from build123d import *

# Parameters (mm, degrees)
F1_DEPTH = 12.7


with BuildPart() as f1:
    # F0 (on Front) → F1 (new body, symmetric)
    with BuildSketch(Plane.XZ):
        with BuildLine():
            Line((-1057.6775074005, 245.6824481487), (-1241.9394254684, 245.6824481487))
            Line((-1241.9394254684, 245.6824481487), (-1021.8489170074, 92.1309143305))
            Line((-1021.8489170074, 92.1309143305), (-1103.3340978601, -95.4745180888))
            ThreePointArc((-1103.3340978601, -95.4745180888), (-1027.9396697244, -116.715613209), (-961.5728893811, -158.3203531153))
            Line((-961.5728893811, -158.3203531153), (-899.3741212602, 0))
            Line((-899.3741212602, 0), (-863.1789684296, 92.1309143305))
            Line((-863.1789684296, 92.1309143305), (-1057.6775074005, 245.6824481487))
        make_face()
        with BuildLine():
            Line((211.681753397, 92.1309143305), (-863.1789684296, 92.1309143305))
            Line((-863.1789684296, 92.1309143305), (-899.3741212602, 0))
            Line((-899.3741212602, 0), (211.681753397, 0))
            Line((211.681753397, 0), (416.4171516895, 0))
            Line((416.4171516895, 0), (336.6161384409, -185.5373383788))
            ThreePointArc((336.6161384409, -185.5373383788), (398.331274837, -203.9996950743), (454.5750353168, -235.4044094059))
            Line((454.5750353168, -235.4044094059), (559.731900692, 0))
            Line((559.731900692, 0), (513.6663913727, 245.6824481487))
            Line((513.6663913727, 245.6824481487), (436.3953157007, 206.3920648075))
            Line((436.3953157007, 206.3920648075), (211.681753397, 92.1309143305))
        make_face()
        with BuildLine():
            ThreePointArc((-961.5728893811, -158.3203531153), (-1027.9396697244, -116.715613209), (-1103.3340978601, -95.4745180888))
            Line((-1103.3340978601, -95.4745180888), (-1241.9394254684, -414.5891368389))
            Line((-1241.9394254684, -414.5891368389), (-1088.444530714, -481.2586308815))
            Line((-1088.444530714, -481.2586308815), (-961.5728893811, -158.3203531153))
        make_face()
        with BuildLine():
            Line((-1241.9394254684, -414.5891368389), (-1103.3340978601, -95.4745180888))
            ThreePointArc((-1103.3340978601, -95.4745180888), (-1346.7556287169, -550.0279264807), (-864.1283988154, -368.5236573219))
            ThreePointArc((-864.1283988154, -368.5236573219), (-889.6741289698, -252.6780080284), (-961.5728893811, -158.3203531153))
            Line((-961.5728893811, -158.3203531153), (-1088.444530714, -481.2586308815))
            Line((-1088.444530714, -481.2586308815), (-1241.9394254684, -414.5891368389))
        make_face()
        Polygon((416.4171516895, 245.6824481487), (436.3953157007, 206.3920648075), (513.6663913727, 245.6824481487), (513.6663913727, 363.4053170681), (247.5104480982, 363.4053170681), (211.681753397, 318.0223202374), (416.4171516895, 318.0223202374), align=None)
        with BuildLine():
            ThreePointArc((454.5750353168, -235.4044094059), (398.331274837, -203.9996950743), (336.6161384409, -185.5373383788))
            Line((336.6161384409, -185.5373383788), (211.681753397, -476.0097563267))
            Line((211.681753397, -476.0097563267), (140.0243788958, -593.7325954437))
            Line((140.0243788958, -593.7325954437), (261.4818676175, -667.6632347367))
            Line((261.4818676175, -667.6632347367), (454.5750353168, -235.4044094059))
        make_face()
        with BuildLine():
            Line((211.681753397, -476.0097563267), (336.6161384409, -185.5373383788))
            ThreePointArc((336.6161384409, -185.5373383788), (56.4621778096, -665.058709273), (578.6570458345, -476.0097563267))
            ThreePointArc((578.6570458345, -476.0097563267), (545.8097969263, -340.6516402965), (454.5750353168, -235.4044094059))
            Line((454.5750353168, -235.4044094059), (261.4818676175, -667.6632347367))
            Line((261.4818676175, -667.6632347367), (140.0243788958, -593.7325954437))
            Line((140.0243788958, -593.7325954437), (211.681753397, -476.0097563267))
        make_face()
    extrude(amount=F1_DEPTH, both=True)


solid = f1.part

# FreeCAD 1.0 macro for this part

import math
import FreeCAD as App
import Part
import Sketcher
Q = App.Units.Quantity

doc = App.newDocument("Part")
body = doc.addObject("PartDesign::Body", "Body")

sketch1 = doc.addObject("Sketcher::SketchObject", "Sketch")
body.addObject(sketch1)
sketch1.AttachmentSupport = (doc.XZ_Plane, [""])
sketch1.MapMode = "FlatFace"
sketch1.addGeometry(Part.LineSegment(App.Vector(-1057.677507, 245.682448, 0), App.Vector(-1241.939425, 245.682448, 0)), False)
sketch1.addGeometry(Part.LineSegment(App.Vector(-1241.939425, 245.682448, 0), App.Vector(-1021.848917, 92.130914, 0)), False)
sketch1.addGeometry(Part.LineSegment(App.Vector(-1021.848917, 92.130914, 0), App.Vector(-1103.334098, -95.474518, 0)), False)
sketch1.addGeometry(Part.ArcOfCircle(Part.Circle(App.Vector(-1139.571667, -368.523657, 0), App.Vector(0, 0, 1), 275.443268), math.radians(82.440199), math.radians(409.742293)), False)
sketch1.addGeometry(Part.LineSegment(App.Vector(-961.572889, -158.320353, 0), App.Vector(-899.374121, 0, 0)), False)
sketch1.addGeometry(Part.LineSegment(App.Vector(-899.374121, 0, 0), App.Vector(416.417152, 0, 0)), False)
sketch1.addGeometry(Part.LineSegment(App.Vector(416.417152, 0, 0), App.Vector(336.616138, -185.537338, 0)), False)
sketch1.addGeometry(Part.ArcOfCircle(Part.Circle(App.Vector(283.339143, -476.009756, 0), App.Vector(0, 0, 1), 295.317903), math.radians(79.606616), math.radians(414.561005)), False)
sketch1.addGeometry(Part.LineSegment(App.Vector(454.575035, -235.404409, 0), App.Vector(559.731901, 0, 0)), False)
sketch1.addGeometry(Part.LineSegment(App.Vector(559.731901, 0, 0), App.Vector(513.666391, 245.682448, 0)), False)
sketch1.addGeometry(Part.LineSegment(App.Vector(513.666391, 245.682448, 0), App.Vector(513.666391, 363.405317, 0)), False)
sketch1.addGeometry(Part.LineSegment(App.Vector(513.666391, 363.405317, 0), App.Vector(247.510448, 363.405317, 0)), False)
sketch1.addGeometry(Part.LineSegment(App.Vector(247.510448, 363.405317, 0), App.Vector(211.681753, 318.02232, 0)), False)
sketch1.addGeometry(Part.LineSegment(App.Vector(211.681753, 318.02232, 0), App.Vector(416.417152, 318.02232, 0)), False)
sketch1.addGeometry(Part.LineSegment(App.Vector(416.417152, 318.02232, 0), App.Vector(416.417152, 245.682448, 0)), False)
sketch1.addGeometry(Part.LineSegment(App.Vector(416.417152, 245.682448, 0), App.Vector(436.395316, 206.392065, 0)), False)
sketch1.addGeometry(Part.LineSegment(App.Vector(436.395316, 206.392065, 0), App.Vector(211.681753, 92.130914, 0)), False)
sketch1.addGeometry(Part.LineSegment(App.Vector(211.681753, 92.130914, 0), App.Vector(-863.178968, 92.130914, 0)), False)
sketch1.addGeometry(Part.LineSegment(App.Vector(-863.178968, 92.130914, 0), App.Vector(-1057.677507, 245.682448, 0)), False)
sketch1.addConstraint(Sketcher.Constraint("Coincident", 0, 2, 1, 1))
sketch1.addConstraint(Sketcher.Constraint("Coincident", 1, 2, 2, 1))
sketch1.addConstraint(Sketcher.Constraint("Coincident", 2, 2, 3, 1))
sketch1.addConstraint(Sketcher.Constraint("Coincident", 3, 2, 4, 1))
sketch1.addConstraint(Sketcher.Constraint("Coincident", 4, 2, 5, 1))
sketch1.addConstraint(Sketcher.Constraint("Coincident", 5, 2, 6, 1))
sketch1.addConstraint(Sketcher.Constraint("Coincident", 6, 2, 7, 1))
sketch1.addConstraint(Sketcher.Constraint("Coincident", 7, 2, 8, 1))
sketch1.addConstraint(Sketcher.Constraint("Coincident", 8, 2, 9, 1))
sketch1.addConstraint(Sketcher.Constraint("Coincident", 9, 2, 10, 1))
sketch1.addConstraint(Sketcher.Constraint("Coincident", 10, 2, 11, 1))
sketch1.addConstraint(Sketcher.Constraint("Coincident", 11, 2, 12, 1))
sketch1.addConstraint(Sketcher.Constraint("Coincident", 12, 2, 13, 1))
sketch1.addConstraint(Sketcher.Constraint("Coincident", 13, 2, 14, 1))
sketch1.addConstraint(Sketcher.Constraint("Coincident", 14, 2, 15, 1))
sketch1.addConstraint(Sketcher.Constraint("Coincident", 15, 2, 16, 1))
sketch1.addConstraint(Sketcher.Constraint("Coincident", 16, 2, 17, 1))
sketch1.addConstraint(Sketcher.Constraint("Coincident", 17, 2, 18, 1))
sketch1.addConstraint(Sketcher.Constraint("Coincident", 18, 2, 0, 1))
sketch1.addConstraint(Sketcher.Constraint("Horizontal", 0))
sketch1.addConstraint(Sketcher.Constraint("Horizontal", 5))
sketch1.addConstraint(Sketcher.Constraint("Vertical", 10))
sketch1.addConstraint(Sketcher.Constraint("Horizontal", 11))
sketch1.addConstraint(Sketcher.Constraint("Horizontal", 13))
sketch1.addConstraint(Sketcher.Constraint("Vertical", 14))
sketch1.addConstraint(Sketcher.Constraint("Horizontal", 17))
sketch1.addConstraint(Sketcher.Constraint("PointOnObject", 4, 2, -1))
sketch1.addConstraint(Sketcher.Constraint("PointOnObject", 8, 2, -1))
sketch1.addConstraint(Sketcher.Constraint("Perpendicular", 15, 16))
sketch1.addConstraint(Sketcher.Constraint("Perpendicular", 12, 18))
sketch1.addConstraint(Sketcher.Constraint("Horizontal", 0, 2, 9, 2))
sketch1.addConstraint(Sketcher.Constraint("Horizontal", 9, 2, 14, 2))
sketch1.addConstraint(Sketcher.Constraint("Horizontal", 1, 2, 16, 2))
sketch1.addConstraint(Sketcher.Constraint("Vertical", 5, 2, 13, 2))
sketch1.addConstraint(Sketcher.Constraint("Vertical", 12, 2, 16, 2))
sketch1.addConstraint(Sketcher.Constraint("DistanceX", 13, 1, 13, 2, 204.735398))
sketch1.addConstraint(Sketcher.Constraint("Radius", 3, 275.443268))
sketch1.addConstraint(Sketcher.Constraint("Radius", 7, 295.317903))
sketch1.addConstraint(Sketcher.Constraint("Distance", 15, 44.0779))
sketch1.addConstraint(Sketcher.Constraint("DistanceX", 0, 2, 0, 1, 184.261918))
sketch1.addConstraint(Sketcher.Constraint("DistanceX", 17, 2, 17, 1, 1074.860722))
sketch1.addConstraint(Sketcher.Constraint("DistanceY", 10, 1, 10, 2, 117.722869))
sketch1.addConstraint(Sketcher.Constraint("DistanceX", -1, 1, 8, 2, 559.731901))
sketch1.addConstraint(Sketcher.Constraint("DistanceY", 7, 3, 3, 3, 107.486099))
sketch1.addConstraint(Sketcher.Constraint("DistanceY", 3, 2, 0, 2, 404.002801))
sketch1.addConstraint(Sketcher.Constraint("Distance", 1, 268.36152))
sketch1.addConstraint(Sketcher.Constraint("Distance", 6, 201.971052))
sketch1.addConstraint(Sketcher.Constraint("Distance", 9, 249.96379))
sketch1.addConstraint(Sketcher.Constraint("Distance", 12, 57.821378))
sketch1.addConstraint(Sketcher.Constraint("DistanceX", 5, 1, 5, 2, 1315.791273))
sketch1.addConstraint(Sketcher.Constraint("DistanceX", 11, 2, 11, 1, 266.155943))
sketch1.addConstraint(Sketcher.Constraint("DistanceY", 14, 2, 14, 1, 72.339872))
sketch1.addConstraint(Sketcher.Constraint("DistanceY", -1, 1, 0, 2, 245.682448))
sketch1.addConstraint(Sketcher.Constraint("DistanceY", 2, 2, -1, 1, 95.474518))
sketch1.addConstraint(Sketcher.Constraint("DistanceX", 3, 2, -1, 1, 961.572889))
sketch1.addConstraint(Sketcher.Constraint("DistanceX", -1, 1, 6, 2, 336.616138))
sketch1.addConstraint(Sketcher.Constraint("DistanceY", 7, 2, -1, 1, 235.404409))
sketch1.addConstraint(Sketcher.Constraint("DistanceX", 3, 3, 7, 3, 1422.91081))
sketch1.addConstraint(Sketcher.Constraint("DistanceX", 0, 2, 3, 3, 102.367759))
pad1 = doc.addObject("PartDesign::Pad", "Pad")
body.addObject(pad1)
pad1.Profile = sketch1
pad1.Length = Q("1 in")
pad1.Midplane = True

doc.recompute()
